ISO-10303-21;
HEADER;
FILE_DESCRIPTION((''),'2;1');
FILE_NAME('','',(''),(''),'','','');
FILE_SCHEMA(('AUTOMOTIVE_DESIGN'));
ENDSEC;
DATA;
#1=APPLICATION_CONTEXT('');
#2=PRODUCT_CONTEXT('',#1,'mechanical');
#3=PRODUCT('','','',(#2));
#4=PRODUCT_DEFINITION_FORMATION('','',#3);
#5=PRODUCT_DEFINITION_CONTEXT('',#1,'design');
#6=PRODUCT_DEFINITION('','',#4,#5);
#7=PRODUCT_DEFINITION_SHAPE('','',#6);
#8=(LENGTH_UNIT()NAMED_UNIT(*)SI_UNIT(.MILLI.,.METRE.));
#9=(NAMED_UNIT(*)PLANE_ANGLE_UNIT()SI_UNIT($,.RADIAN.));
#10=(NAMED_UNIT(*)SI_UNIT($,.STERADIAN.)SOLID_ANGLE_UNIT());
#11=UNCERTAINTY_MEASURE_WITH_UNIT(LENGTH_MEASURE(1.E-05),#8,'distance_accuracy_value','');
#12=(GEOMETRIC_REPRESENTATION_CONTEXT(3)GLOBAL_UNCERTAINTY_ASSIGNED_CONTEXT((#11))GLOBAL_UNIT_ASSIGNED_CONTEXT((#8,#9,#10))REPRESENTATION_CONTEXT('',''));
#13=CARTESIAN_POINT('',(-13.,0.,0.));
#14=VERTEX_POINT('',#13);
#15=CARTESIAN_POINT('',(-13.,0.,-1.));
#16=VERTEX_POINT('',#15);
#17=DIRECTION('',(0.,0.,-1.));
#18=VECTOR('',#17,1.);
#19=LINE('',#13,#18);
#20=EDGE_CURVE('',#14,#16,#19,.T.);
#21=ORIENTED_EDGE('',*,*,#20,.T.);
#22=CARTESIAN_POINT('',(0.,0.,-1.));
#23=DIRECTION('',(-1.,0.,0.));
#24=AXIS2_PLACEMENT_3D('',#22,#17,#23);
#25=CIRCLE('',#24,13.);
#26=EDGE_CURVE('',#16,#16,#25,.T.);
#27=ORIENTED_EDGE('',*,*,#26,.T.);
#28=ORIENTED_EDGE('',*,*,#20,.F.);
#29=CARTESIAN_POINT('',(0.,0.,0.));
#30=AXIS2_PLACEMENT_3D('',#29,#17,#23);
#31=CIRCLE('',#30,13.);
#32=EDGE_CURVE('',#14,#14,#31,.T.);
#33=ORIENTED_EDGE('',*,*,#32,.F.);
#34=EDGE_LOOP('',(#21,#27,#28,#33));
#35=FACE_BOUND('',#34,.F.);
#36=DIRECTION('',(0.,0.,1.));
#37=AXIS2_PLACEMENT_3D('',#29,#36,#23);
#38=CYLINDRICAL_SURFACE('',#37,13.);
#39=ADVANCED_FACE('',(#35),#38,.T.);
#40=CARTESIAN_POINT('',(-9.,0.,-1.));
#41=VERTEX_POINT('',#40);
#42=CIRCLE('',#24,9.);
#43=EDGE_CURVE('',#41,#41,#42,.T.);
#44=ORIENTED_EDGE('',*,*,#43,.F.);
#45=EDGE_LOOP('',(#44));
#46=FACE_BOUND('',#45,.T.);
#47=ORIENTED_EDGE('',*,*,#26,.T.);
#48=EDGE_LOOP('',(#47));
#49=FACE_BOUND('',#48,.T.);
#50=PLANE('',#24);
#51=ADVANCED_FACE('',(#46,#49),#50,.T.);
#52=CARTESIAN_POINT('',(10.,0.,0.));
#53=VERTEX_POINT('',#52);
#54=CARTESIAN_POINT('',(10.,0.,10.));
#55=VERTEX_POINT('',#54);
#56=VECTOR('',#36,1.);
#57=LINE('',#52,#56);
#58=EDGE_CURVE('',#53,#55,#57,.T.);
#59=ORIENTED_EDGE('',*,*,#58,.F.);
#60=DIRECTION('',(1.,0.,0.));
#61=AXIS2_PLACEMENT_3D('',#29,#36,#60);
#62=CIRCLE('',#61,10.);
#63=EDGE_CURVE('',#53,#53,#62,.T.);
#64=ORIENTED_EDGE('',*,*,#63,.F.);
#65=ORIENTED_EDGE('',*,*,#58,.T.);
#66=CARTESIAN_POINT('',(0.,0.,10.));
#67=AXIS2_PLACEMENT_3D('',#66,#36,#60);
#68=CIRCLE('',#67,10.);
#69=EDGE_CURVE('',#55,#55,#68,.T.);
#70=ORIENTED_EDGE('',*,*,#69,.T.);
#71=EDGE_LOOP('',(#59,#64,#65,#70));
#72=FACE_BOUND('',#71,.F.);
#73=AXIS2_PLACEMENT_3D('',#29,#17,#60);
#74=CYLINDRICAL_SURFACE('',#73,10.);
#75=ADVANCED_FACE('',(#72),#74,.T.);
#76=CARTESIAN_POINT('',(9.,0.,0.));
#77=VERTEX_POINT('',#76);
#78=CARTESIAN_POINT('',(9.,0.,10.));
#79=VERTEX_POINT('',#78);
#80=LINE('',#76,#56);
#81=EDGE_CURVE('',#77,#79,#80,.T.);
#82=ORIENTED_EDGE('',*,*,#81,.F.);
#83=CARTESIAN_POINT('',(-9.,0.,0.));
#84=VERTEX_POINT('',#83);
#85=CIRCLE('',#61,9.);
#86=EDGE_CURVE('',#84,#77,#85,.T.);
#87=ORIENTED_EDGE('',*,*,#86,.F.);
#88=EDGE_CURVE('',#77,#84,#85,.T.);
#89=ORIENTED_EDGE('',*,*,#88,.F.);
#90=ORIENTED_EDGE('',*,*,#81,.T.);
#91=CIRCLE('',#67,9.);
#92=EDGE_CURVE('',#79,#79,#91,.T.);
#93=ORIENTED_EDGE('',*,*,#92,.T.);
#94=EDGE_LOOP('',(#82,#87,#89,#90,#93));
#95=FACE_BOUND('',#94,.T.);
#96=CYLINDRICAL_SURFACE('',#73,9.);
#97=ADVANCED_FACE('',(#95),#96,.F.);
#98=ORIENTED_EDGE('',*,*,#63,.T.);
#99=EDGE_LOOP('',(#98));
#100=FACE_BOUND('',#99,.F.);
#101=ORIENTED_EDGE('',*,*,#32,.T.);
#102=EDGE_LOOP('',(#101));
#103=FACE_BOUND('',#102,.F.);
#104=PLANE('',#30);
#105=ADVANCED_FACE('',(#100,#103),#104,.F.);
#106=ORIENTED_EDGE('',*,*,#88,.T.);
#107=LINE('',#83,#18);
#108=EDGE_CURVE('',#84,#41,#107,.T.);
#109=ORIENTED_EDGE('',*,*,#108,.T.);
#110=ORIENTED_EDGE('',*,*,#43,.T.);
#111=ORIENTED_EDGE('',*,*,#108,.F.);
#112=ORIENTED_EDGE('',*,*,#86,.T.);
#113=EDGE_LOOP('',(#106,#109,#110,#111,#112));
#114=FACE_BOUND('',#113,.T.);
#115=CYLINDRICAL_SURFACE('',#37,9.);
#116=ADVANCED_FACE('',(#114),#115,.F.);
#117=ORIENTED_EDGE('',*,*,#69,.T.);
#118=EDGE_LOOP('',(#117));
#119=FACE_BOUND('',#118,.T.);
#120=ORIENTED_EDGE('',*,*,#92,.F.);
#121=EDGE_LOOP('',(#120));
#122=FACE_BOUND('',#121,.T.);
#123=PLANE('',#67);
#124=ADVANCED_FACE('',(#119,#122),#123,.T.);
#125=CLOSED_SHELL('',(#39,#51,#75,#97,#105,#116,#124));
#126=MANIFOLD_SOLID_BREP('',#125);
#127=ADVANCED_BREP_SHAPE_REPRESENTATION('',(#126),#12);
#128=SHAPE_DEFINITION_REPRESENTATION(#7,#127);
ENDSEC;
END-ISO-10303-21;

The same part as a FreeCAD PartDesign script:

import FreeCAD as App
import Part
import Sketcher

V = App.Vector
Q = App.Units.Quantity

doc = App.newDocument("Part")
body = doc.addObject("PartDesign::Body", "Body")

# Sketch on XY plane
sketch1 = doc.addObject("Sketcher::SketchObject", "Sketch")
body.addObject(sketch1)
sketch1.AttachmentSupport = (doc.XY_Plane, [""])
sketch1.MapMode = "FlatFace"
sketch1.addGeometry(Part.Circle(V(0, 0, 0), V(0, 0, 1), 10), False)
sketch1.addGeometry(Part.Circle(V(0, 0, 0), V(0, 0, 1), 9), False)
sketch1.addConstraint(Sketcher.Constraint("Coincident", 0, 3, -1, 1))
sketch1.addConstraint(Sketcher.Constraint("Coincident", 1, 3, -1, 1))
sketch1.addConstraint(Sketcher.Constraint("Diameter", 0, Q("20 mm")))
sketch1.addConstraint(Sketcher.Constraint("Diameter", 1, Q("18 mm")))
pad1 = doc.addObject("PartDesign::Pad", "Pad")
body.addObject(pad1)
pad1.Profile = sketch1
pad1.Length = 10

# Sketch on XY plane
sketch2 = doc.addObject("Sketcher::SketchObject", "Sketch001")
body.addObject(sketch2)
sketch2.AttachmentSupport = (doc.XY_Plane, [""])
sketch2.MapMode = "FlatFace"
sketch2.addGeometry(Part.Circle(V(0, 0, 0), V(0, 0, 1), 13), False)
sketch2.addGeometry(Part.Circle(V(0, 0, 0), V(0, 0, 1), 9), False)
sketch2.addConstraint(Sketcher.Constraint("Coincident", 0, 3, -1, 1))
sketch2.addConstraint(Sketcher.Constraint("Coincident", 1, 3, -1, 1))
sketch2.addConstraint(Sketcher.Constraint("Diameter", 0, Q("26 mm")))
sketch2.addConstraint(Sketcher.Constraint("Diameter", 1, Q("18 mm")))
pad2 = doc.addObject("PartDesign::Pad", "Pad001")
body.addObject(pad2)
pad2.Profile = sketch2
pad2.Length = 1
pad2.Reversed = True

doc.recompute()
